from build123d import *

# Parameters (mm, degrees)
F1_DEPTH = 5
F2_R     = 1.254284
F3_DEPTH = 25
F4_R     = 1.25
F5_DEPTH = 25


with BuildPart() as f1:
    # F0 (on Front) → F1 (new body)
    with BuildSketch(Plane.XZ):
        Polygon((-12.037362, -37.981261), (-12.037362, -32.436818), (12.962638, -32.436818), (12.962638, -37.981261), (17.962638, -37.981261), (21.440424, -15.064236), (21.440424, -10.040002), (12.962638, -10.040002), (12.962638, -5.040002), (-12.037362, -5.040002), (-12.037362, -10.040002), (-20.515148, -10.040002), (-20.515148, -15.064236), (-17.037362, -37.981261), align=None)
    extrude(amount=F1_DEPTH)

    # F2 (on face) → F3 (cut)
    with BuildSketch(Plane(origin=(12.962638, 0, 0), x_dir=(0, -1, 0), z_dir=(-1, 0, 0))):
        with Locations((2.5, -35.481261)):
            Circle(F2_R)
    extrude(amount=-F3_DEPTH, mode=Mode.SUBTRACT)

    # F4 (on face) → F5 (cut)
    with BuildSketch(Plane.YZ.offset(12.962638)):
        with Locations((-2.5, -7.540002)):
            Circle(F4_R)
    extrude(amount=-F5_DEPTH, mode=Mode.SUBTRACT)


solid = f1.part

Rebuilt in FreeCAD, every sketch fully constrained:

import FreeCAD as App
import Part
import Sketcher

V = App.Vector
Q = App.Units.Quantity

doc = App.newDocument("Part")
params = doc.addObject("Spreadsheet::Sheet", "Params")
for row, (alias, value) in enumerate([
    ("sketch1_width", "25 mm"),
    ("sketch1_width2", "5 mm"),
    ("pad1_length", "5 mm"),
    ("pocket1_length", "25 mm"),
    ("sketch3_diameter", "2.5 mm"),
    ("pocket2_length", "25 mm"),
], start=1):
    params.set(f"A{row}", alias)
    params.set(f"B{row}", "=" + value)
    params.setAlias(f"B{row}", alias)

body = doc.addObject("PartDesign::Body", "Body")

# Sketch on XZ plane
sketch1 = body.newObject("Sketcher::SketchObject", "Sketch")
sketch1.AttachmentSupport = (doc.getObject("XZ_Plane"), [""])
sketch1.MapMode = "FlatFace"
sketch1.addGeometry([
    Part.LineSegment(V(-12.037362, -37.981261, 0), V(-12.037362, -32.436818, 0)),  # 0
    Part.LineSegment(V(-12.037362, -32.436818, 0), V(12.962638, -32.436818, 0)),  # 1
    Part.LineSegment(V(12.962638, -32.436818, 0), V(12.962638, -37.981261, 0)),  # 2
    Part.LineSegment(V(12.962638, -37.981261, 0), V(17.962638, -37.981261, 0)),  # 3
    Part.LineSegment(V(17.962638, -37.981261, 0), V(21.440424, -15.064236, 0)),  # 4
    Part.LineSegment(V(21.440424, -15.064236, 0), V(21.440424, -10.040002, 0)),  # 5
    Part.LineSegment(V(21.440424, -10.040002, 0), V(12.962638, -10.040002, 0)),  # 6
    Part.LineSegment(V(12.962638, -10.040002, 0), V(12.962638, -5.040002, 0)),  # 7
    Part.LineSegment(V(12.962638, -5.040002, 0), V(-12.037362, -5.040002, 0)),  # 8
    Part.LineSegment(V(-12.037362, -5.040002, 0), V(-12.037362, -10.040002, 0)),  # 9
    Part.LineSegment(V(-12.037362, -10.040002, 0), V(-20.515148, -10.040002, 0)),  # 10
    Part.LineSegment(V(-20.515148, -10.040002, 0), V(-20.515148, -15.064236, 0)),  # 11
    Part.LineSegment(V(-20.515148, -15.064236, 0), V(-17.037362, -37.981261, 0)),  # 12
    Part.LineSegment(V(-17.037362, -37.981261, 0), V(-12.037362, -37.981261, 0)),  # 13
], False)
sketch1.addConstraint([
    Sketcher.Constraint("Coincident", 0, 2, 1, 1),
    Sketcher.Constraint("Coincident", 1, 2, 2, 1),
    Sketcher.Constraint("Coincident", 2, 2, 3, 1),
    Sketcher.Constraint("Coincident", 3, 2, 4, 1),
    Sketcher.Constraint("Coincident", 4, 2, 5, 1),
    Sketcher.Constraint("Coincident", 5, 2, 6, 1),
    Sketcher.Constraint("Coincident", 6, 2, 7, 1),
    Sketcher.Constraint("Coincident", 7, 2, 8, 1),
    Sketcher.Constraint("Coincident", 8, 2, 9, 1),
    Sketcher.Constraint("Coincident", 9, 2, 10, 1),
    Sketcher.Constraint("Coincident", 10, 2, 11, 1),
    Sketcher.Constraint("Coincident", 11, 2, 12, 1),
    Sketcher.Constraint("Coincident", 12, 2, 13, 1),
    Sketcher.Constraint("Coincident", 13, 2, 0, 1),
    Sketcher.Constraint("Vertical", 0),
    Sketcher.Constraint("Horizontal", 1),
    Sketcher.Constraint("Vertical", 2),
    Sketcher.Constraint("Horizontal", 3),
    Sketcher.Constraint("Vertical", 5),
    Sketcher.Constraint("Horizontal", 6),
    Sketcher.Constraint("Vertical", 7),
    Sketcher.Constraint("Horizontal", 8),
    Sketcher.Constraint("Vertical", 9),
    Sketcher.Constraint("Horizontal", 10),
    Sketcher.Constraint("Vertical", 11),
    Sketcher.Constraint("Horizontal", 13),
    Sketcher.Constraint("Horizontal", 6, 2, 9, 2),
    Sketcher.Constraint("Horizontal", 4, 2, 11, 2),
    Sketcher.Constraint("Horizontal", 3, 2, 12, 2),
    Sketcher.Constraint("Vertical", 2, 2, 6, 2),
    Sketcher.Constraint("Vertical", 0, 2, 8, 2),
    Sketcher.Constraint("Equal", 6, 10),
    Sketcher.Constraint("Equal", 3, 13),
    Sketcher.Constraint("Equal", 13, 7),
    Sketcher.Constraint("DistanceX", 1, 1, 1, 2, Q("25 mm")),
    Sketcher.Constraint("DistanceX", 3, 1, 3, 2, Q("5 mm")),
    Sketcher.Constraint("Distance", 4, Q("23.17941 mm")),
    Sketcher.Constraint("DistanceX", 6, 2, 6, 1, Q("8.477786 mm")),
    Sketcher.Constraint("DistanceY", 0, 1, 0, 2, Q("5.544443 mm")),
    Sketcher.Constraint("DistanceY", 5, 1, 5, 2, Q("5.024234 mm")),
    Sketcher.Constraint("DistanceY", 0, 2, -1, 1, Q("32.436818 mm")),
    Sketcher.Constraint("DistanceX", 10, 2, -1, 1, Q("20.515148 mm")),
])
sketch1.setExpression("Constraints[34]", "Params.sketch1_width")
sketch1.setExpression("Constraints[35]", "Params.sketch1_width2")
pad1 = body.newObject("PartDesign::Pad", "Pad")
pad1.Profile = sketch1
pad1.setExpression("Length", "Params.pad1_length")

# Sketch on YZ plane
sketch2 = body.newObject("Sketcher::SketchObject", "Sketch001")
sketch2.AttachmentSupport = (doc.getObject("YZ_Plane"), [""])
sketch2.MapMode = "FlatFace"
sketch2.AttachmentOffset = App.Placement(V(0, 0, 12.962638), App.Rotation())
sketch2.addGeometry(Part.Circle(V(-2.5, -35.481261, 0), V(0, 0, 1), 1.254284), False)
sketch2.addConstraint([
    Sketcher.Constraint("DistanceX", 0, 3, -1, 1, Q("2.5 mm")),
    Sketcher.Constraint("Diameter", 0, Q("2.508568 mm")),
    Sketcher.Constraint("DistanceY", 0, 3, -1, 1, Q("35.481261 mm")),
])
pocket1 = body.newObject("PartDesign::Pocket", "Pocket")
pocket1.Profile = sketch2
pocket1.setExpression("Length", "Params.pocket1_length")
pocket1.Reversed = True

# Sketch on YZ plane
sketch3 = body.newObject("Sketcher::SketchObject", "Sketch002")
sketch3.AttachmentSupport = (doc.getObject("YZ_Plane"), [""])
sketch3.MapMode = "FlatFace"
sketch3.AttachmentOffset = App.Placement(V(0, 0, 12.962638), App.Rotation())
sketch3.addGeometry(Part.Circle(V(-2.5, -7.540002, 0), V(0, 0, 1), 1.25), False)
sketch3.addConstraint([
    Sketcher.Constraint("Diameter", 0, Q("2.5 mm")),
    Sketcher.Constraint("DistanceX", 0, 3, -1, 1, Q("2.5 mm")),
    Sketcher.Constraint("DistanceY", 0, 3, -1, 1, Q("7.540002 mm")),
])
sketch3.setExpression("Constraints[0]", "Params.sketch3_diameter")
pocket2 = body.newObject("PartDesign::Pocket", "Pocket001")
pocket2.Profile = sketch3
pocket2.setExpression("Length", "Params.pocket2_length")

doc.recompute()
